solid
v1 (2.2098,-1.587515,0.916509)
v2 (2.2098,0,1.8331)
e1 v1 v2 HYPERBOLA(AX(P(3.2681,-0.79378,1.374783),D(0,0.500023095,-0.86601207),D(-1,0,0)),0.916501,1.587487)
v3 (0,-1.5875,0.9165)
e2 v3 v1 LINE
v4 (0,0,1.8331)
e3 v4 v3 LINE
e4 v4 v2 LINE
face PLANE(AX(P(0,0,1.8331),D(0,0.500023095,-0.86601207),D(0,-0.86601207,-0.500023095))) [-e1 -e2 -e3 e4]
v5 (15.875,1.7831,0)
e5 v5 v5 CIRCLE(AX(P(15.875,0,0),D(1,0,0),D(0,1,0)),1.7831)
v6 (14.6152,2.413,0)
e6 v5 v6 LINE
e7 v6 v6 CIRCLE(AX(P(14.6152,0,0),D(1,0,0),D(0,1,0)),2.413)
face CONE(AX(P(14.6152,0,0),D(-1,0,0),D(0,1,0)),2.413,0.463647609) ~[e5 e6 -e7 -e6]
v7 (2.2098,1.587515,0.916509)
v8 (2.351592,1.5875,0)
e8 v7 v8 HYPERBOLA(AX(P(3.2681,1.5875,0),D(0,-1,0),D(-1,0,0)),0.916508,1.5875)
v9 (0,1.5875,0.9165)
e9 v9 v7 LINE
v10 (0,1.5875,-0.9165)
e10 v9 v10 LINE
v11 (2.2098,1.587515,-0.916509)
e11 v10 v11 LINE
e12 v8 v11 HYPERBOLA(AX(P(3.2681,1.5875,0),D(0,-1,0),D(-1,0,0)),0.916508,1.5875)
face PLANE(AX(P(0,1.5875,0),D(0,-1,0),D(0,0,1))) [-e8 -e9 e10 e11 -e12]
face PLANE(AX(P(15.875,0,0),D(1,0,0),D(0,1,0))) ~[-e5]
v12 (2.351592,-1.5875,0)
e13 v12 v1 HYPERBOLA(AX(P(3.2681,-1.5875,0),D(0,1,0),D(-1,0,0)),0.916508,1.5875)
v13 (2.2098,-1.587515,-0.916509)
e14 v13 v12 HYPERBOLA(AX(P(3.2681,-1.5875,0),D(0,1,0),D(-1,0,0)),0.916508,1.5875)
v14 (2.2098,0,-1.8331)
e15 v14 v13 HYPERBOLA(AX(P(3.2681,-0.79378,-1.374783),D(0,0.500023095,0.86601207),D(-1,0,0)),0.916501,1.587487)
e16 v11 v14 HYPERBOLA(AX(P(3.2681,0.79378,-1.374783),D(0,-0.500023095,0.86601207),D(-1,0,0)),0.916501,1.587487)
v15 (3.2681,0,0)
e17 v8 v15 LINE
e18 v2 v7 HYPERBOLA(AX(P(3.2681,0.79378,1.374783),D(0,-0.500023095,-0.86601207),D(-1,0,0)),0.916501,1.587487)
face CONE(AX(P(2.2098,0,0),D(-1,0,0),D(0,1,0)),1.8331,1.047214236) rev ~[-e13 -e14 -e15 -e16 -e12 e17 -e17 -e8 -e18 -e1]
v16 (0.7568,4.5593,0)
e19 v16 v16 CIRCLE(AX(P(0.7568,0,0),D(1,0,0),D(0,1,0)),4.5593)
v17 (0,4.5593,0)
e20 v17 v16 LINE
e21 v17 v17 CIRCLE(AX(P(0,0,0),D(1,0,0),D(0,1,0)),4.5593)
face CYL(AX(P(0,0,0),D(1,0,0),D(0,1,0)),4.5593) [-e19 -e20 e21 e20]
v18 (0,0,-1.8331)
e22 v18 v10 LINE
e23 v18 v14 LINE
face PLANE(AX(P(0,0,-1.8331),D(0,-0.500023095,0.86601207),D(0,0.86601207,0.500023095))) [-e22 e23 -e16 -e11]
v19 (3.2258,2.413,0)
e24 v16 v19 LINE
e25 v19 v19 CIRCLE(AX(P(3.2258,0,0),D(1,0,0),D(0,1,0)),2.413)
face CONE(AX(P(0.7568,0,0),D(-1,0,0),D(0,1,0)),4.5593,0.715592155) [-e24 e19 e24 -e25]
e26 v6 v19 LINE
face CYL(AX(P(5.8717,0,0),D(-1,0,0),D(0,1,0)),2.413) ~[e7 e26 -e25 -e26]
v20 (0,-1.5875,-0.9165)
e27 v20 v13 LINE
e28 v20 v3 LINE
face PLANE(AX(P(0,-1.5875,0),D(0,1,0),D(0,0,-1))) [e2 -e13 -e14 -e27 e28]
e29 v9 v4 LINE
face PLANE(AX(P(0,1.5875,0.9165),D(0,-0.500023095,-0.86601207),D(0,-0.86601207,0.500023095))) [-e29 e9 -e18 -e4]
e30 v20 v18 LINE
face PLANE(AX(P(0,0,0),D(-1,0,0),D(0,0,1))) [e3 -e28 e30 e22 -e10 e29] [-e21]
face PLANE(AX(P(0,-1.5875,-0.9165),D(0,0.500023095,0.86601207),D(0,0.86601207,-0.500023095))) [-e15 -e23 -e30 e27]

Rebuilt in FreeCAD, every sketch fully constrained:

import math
import FreeCAD as App
import Part
import Sketcher
from FreeCAD import Vector
Q = App.Units.Quantity


def edges_at(feature, points):
    """Names of the edges that pass closest to the given points."""
    edges = feature.Shape.Edges
    near = lambda p: min(range(len(edges)), key=lambda i: edges[i].distToShape(Part.Vertex(*p))[0])
    return sorted({f"Edge{near(p) + 1}" for p in points})

doc = App.newDocument("Part")
body = doc.addObject("PartDesign::Body", "Body")

sketch1 = doc.addObject("Sketcher::SketchObject", "Sketch")
body.addObject(sketch1)
sketch1.AttachmentSupport = (doc.XY_Plane, [""])
sketch1.MapMode = "FlatFace"
sketch1.addGeometry([
    Part.LineSegment(Vector(3.3, 0, 0), Vector(15.9, 0, 0)),
    Part.LineSegment(Vector(15.9, 0, 0), Vector(15.9, 2.4, 0)),
    Part.LineSegment(Vector(15.9, 2.4, 0), Vector(3.2, 2.4, 0)),
    Part.LineSegment(Vector(3.2, 2.4, 0), Vector(0.8, 4.6, 0)),
    Part.LineSegment(Vector(0.8, 4.6, 0), Vector(0, 4.6, 0)),
    Part.LineSegment(Vector(0, 4.6, 0), Vector(0, 1.8, 0)),
    Part.LineSegment(Vector(0, 1.8, 0), Vector(2.2, 1.8, 0)),
    Part.LineSegment(Vector(2.2, 1.8, 0), Vector(3.3, 0, 0)),
], False)
sketch1.addConstraint([
    Sketcher.Constraint("Coincident", 0, 2, 1, 1),
    Sketcher.Constraint("Coincident", 1, 2, 2, 1),
    Sketcher.Constraint("Coincident", 2, 2, 3, 1),
    Sketcher.Constraint("Coincident", 3, 2, 4, 1),
    Sketcher.Constraint("Coincident", 4, 2, 5, 1),
    Sketcher.Constraint("Coincident", 5, 2, 6, 1),
    Sketcher.Constraint("Coincident", 6, 2, 7, 1),
    Sketcher.Constraint("Coincident", 7, 2, 0, 1),
    Sketcher.Constraint("Horizontal", 0),
    Sketcher.Constraint("Vertical", 1),
    Sketcher.Constraint("Horizontal", 2),
    Sketcher.Constraint("Horizontal", 4),
    Sketcher.Constraint("Vertical", 5),
    Sketcher.Constraint("Horizontal", 6),
    Sketcher.Constraint("PointOnObject", 0, 2, -1),
    Sketcher.Constraint("PointOnObject", 4, 2, -2),
    Sketcher.Constraint("DistanceX", 6, 1, 6, 2, Q("0.087 in")),
    Sketcher.Constraint("DistanceX", -1, 1, 0, 2, Q("0.625 in")),
    Sketcher.Constraint("DistanceX", -1, 1, 2, 2, Q("0.127 in")),
    Sketcher.Constraint("Angle", 3, Q("138.9996 deg")),
    Sketcher.Constraint("Angle", 7, Q("-60.001 deg")),
    Sketcher.Constraint("DistanceY", 1, 1, 1, 2, Q("0.095 in")),
    Sketcher.Constraint("DistanceX", 4, 2, 4, 1, Q("0.0298 in")),
    Sketcher.Constraint("DistanceX", 0, 1, 0, 2, Q("12.607 mm")),
])
revolution = doc.addObject("PartDesign::Revolution", "Revolution")
body.addObject(revolution)
revolution.Profile = sketch1
revolution.ReferenceAxis = (sketch1, ["H_Axis"])
revolution.Angle = 360

sketch2 = doc.addObject("Sketcher::SketchObject", "Sketch001")
body.addObject(sketch2)
sketch2.AttachmentSupport = (doc.YZ_Plane, [""])
sketch2.MapMode = "FlatFace"
sketch2.addGeometry([
    Part.LineSegment(Vector(1.6, 0.9, 0), Vector(0, 1.8, 0)),
    Part.ArcOfCircle(Part.Circle(Vector(0, 0, 0), Vector(0, 0, 1), 1.8), math.radians(30), math.radians(90)),
    Part.ArcOfCircle(Part.Circle(Vector(0, 0, 0), Vector(0, 0, 1), 1.8), math.radians(90), math.radians(150)),
    Part.LineSegment(Vector(0, 1.8, 0), Vector(-1.6, 0.9, 0)),
    Part.ArcOfCircle(Part.Circle(Vector(0, 0, 0), Vector(0, 0, 1), 1.8), math.radians(-30), math.radians(30)),
    Part.LineSegment(Vector(1.6, 0.9, 0), Vector(1.6, -0.9, 0)),
    Part.LineSegment(Vector(-1.6, 0.9, 0), Vector(-1.6, -0.9, 0)),
    Part.ArcOfCircle(Part.Circle(Vector(0, 0, 0), Vector(0, 0, 1), 1.8), math.radians(150), math.radians(210)),
    Part.LineSegment(Vector(-1.6, -0.9, 0), Vector(0, -1.8, 0)),
    Part.ArcOfCircle(Part.Circle(Vector(0, 0, 0), Vector(0, 0, 1), 1.8), math.radians(-150), math.radians(-90)),
    Part.ArcOfCircle(Part.Circle(Vector(0, 0, 0), Vector(0, 0, 1), 1.8), math.radians(-90), math.radians(-30)),
    Part.LineSegment(Vector(0, -1.8, 0), Vector(1.6, -0.9, 0)),
], False)
sketch2.addConstraint([
    Sketcher.Constraint("Coincident", 0, 1, 1, 1),
    Sketcher.Constraint("Coincident", 1, 2, 0, 2),
    Sketcher.Constraint("Coincident", 2, 1, 3, 1),
    Sketcher.Constraint("Coincident", 3, 2, 2, 2),
    Sketcher.Constraint("Coincident", 4, 1, 5, 2),
    Sketcher.Constraint("Coincident", 5, 1, 4, 2),
    Sketcher.Constraint("Coincident", 6, 1, 7, 1),
    Sketcher.Constraint("Coincident", 7, 2, 6, 2),
    Sketcher.Constraint("Coincident", 8, 1, 9, 1),
    Sketcher.Constraint("Coincident", 9, 2, 8, 2),
    Sketcher.Constraint("Coincident", 10, 1, 11, 1),
    Sketcher.Constraint("Coincident", 11, 2, 10, 2),
    Sketcher.Constraint("Vertical", 5),
    Sketcher.Constraint("Vertical", 6),
    Sketcher.Constraint("Coincident", 1, 3, -1, 1),
    Sketcher.Constraint("Coincident", 2, 3, -1, 1),
    Sketcher.Constraint("Coincident", 4, 3, -1, 1),
    Sketcher.Constraint("Coincident", 7, 3, -1, 1),
    Sketcher.Constraint("Coincident", 9, 3, -1, 1),
    Sketcher.Constraint("Coincident", 10, 3, -1, 1),
    Sketcher.Constraint("Coincident", 2, 1, 1, 2),
    Sketcher.Constraint("Coincident", 5, 1, 0, 1),
    Sketcher.Constraint("Coincident", 6, 1, 3, 2),
    Sketcher.Constraint("Coincident", 8, 1, 7, 2),
    Sketcher.Constraint("Coincident", 10, 1, 9, 2),
    Sketcher.Constraint("PointOnObject", 1, 2, -2),
    Sketcher.Constraint("PointOnObject", 9, 2, -2),
    Sketcher.Constraint("Parallel", 0, 8),
    Sketcher.Constraint("Parallel", 3, 11),
    Sketcher.Constraint("Radius", 1, Q("1.833 mm")),
    Sketcher.Constraint("DistanceX", -1, 1, 0, 1, Q("0.0625 in")),
])
pad1 = doc.addObject("PartDesign::Pad", "Pad")
body.addObject(pad1)
pad1.Profile = sketch2
pad1.Length = 2.3516
doc.recompute()

chamfer = doc.addObject("PartDesign::Chamfer", "Chamfer")
body.addObject(chamfer)
chamfer.Base = (pad1, edges_at(pad1, [(15.875, -2.413, 0)]))
chamfer.ChamferType = "Two distances"
chamfer.Size = Q("0.0247992 in")
chamfer.Size2 = Q("0.0495984 in")

doc.recompute()
